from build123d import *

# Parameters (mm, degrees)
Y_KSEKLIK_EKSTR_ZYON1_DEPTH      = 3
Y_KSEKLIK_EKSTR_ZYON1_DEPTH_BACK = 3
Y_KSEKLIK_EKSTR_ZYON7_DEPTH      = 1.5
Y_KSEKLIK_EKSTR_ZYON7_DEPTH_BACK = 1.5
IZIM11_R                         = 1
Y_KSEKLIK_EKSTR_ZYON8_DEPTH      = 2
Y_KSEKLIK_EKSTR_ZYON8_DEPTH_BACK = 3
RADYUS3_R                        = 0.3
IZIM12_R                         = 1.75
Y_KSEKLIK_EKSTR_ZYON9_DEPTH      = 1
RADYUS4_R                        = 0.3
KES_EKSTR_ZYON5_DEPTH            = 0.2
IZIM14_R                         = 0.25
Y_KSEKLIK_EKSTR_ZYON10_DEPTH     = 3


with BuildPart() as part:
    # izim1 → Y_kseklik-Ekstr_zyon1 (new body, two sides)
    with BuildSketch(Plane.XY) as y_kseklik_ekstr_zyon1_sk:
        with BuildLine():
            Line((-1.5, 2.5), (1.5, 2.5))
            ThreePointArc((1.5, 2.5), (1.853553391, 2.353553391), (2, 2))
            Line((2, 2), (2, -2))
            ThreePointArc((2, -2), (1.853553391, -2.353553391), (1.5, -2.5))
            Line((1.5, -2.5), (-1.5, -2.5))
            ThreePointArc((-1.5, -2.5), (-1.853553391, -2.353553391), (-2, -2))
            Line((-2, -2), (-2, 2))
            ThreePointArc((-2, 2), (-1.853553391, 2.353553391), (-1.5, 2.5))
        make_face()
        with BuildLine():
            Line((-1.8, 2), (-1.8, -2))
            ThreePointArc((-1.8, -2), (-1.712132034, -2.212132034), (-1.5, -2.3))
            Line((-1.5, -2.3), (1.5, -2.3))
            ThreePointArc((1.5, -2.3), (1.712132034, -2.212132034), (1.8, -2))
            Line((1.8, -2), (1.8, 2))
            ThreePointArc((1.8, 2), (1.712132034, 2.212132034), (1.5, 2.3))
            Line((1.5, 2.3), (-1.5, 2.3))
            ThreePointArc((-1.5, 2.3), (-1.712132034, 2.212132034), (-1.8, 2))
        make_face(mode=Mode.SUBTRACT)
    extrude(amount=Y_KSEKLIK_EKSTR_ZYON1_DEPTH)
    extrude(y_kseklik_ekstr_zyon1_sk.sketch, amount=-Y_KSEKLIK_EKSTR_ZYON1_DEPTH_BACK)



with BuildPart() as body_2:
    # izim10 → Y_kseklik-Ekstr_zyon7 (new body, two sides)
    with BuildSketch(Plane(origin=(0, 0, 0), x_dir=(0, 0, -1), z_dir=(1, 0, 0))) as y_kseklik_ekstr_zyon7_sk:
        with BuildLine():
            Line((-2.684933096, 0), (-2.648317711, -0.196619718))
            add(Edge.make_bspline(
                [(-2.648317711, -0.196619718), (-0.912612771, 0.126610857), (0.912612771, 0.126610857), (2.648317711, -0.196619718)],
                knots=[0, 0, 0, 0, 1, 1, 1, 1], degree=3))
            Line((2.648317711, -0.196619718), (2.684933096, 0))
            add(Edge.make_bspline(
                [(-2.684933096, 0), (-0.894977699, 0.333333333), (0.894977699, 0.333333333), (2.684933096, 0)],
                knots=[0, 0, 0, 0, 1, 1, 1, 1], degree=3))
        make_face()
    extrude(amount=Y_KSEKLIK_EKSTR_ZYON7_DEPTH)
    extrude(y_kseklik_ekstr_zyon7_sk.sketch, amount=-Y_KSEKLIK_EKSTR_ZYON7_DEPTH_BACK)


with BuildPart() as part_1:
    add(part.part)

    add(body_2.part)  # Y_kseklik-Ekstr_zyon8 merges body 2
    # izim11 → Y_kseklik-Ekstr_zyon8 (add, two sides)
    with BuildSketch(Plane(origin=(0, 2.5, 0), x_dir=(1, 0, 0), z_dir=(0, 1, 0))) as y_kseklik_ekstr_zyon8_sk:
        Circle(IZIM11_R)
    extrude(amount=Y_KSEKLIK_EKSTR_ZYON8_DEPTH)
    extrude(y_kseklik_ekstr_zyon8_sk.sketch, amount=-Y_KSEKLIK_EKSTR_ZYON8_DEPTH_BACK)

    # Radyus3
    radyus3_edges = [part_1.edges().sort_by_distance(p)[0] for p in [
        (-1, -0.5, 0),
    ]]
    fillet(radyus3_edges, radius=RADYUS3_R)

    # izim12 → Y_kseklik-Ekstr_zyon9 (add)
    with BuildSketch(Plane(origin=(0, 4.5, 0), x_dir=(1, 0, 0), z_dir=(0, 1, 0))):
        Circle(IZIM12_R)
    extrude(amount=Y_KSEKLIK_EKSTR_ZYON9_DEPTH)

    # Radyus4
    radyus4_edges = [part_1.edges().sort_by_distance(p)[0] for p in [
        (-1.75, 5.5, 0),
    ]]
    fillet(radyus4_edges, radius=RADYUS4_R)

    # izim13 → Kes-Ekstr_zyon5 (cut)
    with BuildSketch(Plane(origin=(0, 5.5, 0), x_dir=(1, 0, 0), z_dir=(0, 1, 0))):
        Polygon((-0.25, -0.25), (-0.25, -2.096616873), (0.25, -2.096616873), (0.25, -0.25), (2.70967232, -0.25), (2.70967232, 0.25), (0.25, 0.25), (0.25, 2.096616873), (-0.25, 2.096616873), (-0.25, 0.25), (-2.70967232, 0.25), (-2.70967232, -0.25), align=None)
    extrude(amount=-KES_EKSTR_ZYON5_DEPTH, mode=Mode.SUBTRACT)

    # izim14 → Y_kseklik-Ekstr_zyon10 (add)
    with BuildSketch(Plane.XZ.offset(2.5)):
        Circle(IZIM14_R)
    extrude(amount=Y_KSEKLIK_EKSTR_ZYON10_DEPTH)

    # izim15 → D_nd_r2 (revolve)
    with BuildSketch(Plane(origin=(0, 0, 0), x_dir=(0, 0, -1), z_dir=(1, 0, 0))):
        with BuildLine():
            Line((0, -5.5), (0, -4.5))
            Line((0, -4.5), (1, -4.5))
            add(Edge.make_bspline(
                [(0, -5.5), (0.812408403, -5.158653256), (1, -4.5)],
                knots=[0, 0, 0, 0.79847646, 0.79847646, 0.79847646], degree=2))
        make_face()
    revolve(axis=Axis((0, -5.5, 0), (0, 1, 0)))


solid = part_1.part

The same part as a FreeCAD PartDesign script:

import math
import FreeCAD as App
import Part
import Sketcher
Q = App.Units.Quantity


def edges_at(feature, points):
    """Names of the edges that pass closest to the given points."""
    edges = feature.Shape.Edges
    near = lambda p: min(range(len(edges)), key=lambda i: edges[i].distToShape(Part.Vertex(*p))[0])
    return sorted({f"Edge{near(p) + 1}" for p in points})

doc = App.newDocument("Part")
body = doc.addObject("PartDesign::Body", "Body")

# Sketch on XY plane
sketch1 = body.newObject("Sketcher::SketchObject", "Sketch")
sketch1.AttachmentSupport = (doc.getObject("XY_Plane"), [""])
sketch1.MapMode = "FlatFace"
sketch1.addGeometry([
    Part.LineSegment(App.Vector(1.5, 2.5, 0), App.Vector(-1.5, 2.5, 0)),  # 0
    Part.ArcOfCircle(Part.Circle(App.Vector(-1.5, 2, 0), App.Vector(0, 0, 1), 0.5), math.radians(90), math.radians(180)),  # 1
    Part.LineSegment(App.Vector(-2, 2, 0), App.Vector(-2, -2, 0)),  # 2
    Part.ArcOfCircle(Part.Circle(App.Vector(-1.5, -2, 0), App.Vector(0, 0, 1), 0.5), math.radians(180), math.radians(270)),  # 3
    Part.LineSegment(App.Vector(-1.5, -2.5, 0), App.Vector(1.5, -2.5, 0)),  # 4
    Part.ArcOfCircle(Part.Circle(App.Vector(1.5, -2, 0), App.Vector(0, 0, 1), 0.5), math.radians(-90), math.radians(0)),  # 5
    Part.LineSegment(App.Vector(2, -2, 0), App.Vector(2, 2, 0)),  # 6
    Part.ArcOfCircle(Part.Circle(App.Vector(1.5, 2, 0), App.Vector(0, 0, 1), 0.5), math.radians(0), math.radians(90)),  # 7
    Part.ArcOfCircle(Part.Circle(App.Vector(-1.5, 2, 0), App.Vector(0, 0, 1), 0.3), math.radians(90), math.radians(180)),  # 8
    Part.LineSegment(App.Vector(-1.5, 2.3, 0), App.Vector(1.5, 2.3, 0)),  # 9
    Part.ArcOfCircle(Part.Circle(App.Vector(1.5, 2, 0), App.Vector(0, 0, 1), 0.3), math.radians(0), math.radians(90)),  # 10
    Part.LineSegment(App.Vector(1.8, 2, 0), App.Vector(1.8, -2, 0)),  # 11
    Part.ArcOfCircle(Part.Circle(App.Vector(1.5, -2, 0), App.Vector(0, 0, 1), 0.3), math.radians(-90), math.radians(0)),  # 12
    Part.LineSegment(App.Vector(1.5, -2.3, 0), App.Vector(-1.5, -2.3, 0)),  # 13
    Part.ArcOfCircle(Part.Circle(App.Vector(-1.5, -2, 0), App.Vector(0, 0, 1), 0.3), math.radians(-180), math.radians(-90)),  # 14
    Part.LineSegment(App.Vector(-1.8, -2, 0), App.Vector(-1.8, 2, 0)),  # 15
], False)
sketch1.addConstraint([
    Sketcher.Constraint("Tangent", 0, 2, 1, 1),
    Sketcher.Constraint("Tangent", 1, 2, 2, 1),
    Sketcher.Constraint("Tangent", 2, 2, 3, 1),
    Sketcher.Constraint("Tangent", 3, 2, 4, 1),
    Sketcher.Constraint("Tangent", 4, 2, 5, 1),
    Sketcher.Constraint("Tangent", 5, 2, 6, 1),
    Sketcher.Constraint("Tangent", 6, 2, 7, 1),
    Sketcher.Constraint("Tangent", 7, 2, 0, 1),
    Sketcher.Constraint("Tangent", 8, 1, 9, 1),
    Sketcher.Constraint("Tangent", 9, 2, 10, 2),
    Sketcher.Constraint("Tangent", 10, 1, 11, 1),
    Sketcher.Constraint("Tangent", 11, 2, 12, 2),
    Sketcher.Constraint("Tangent", 12, 1, 13, 1),
    Sketcher.Constraint("Tangent", 13, 2, 14, 2),
    Sketcher.Constraint("Tangent", 14, 1, 15, 1),
    Sketcher.Constraint("Tangent", 15, 2, 8, 2),
    Sketcher.Constraint("Horizontal", 0),
    Sketcher.Constraint("Vertical", 2),
    Sketcher.Constraint("Horizontal", 4),
    Sketcher.Constraint("Vertical", 6),
    Sketcher.Constraint("Horizontal", 9),
    Sketcher.Constraint("Vertical", 11),
    Sketcher.Constraint("Horizontal", 13),
    Sketcher.Constraint("Vertical", 15),
    Sketcher.Constraint("Coincident", 8, 3, 1, 3),
    Sketcher.Constraint("Coincident", 10, 3, 7, 3),
    Sketcher.Constraint("Coincident", 12, 3, 5, 3),
    Sketcher.Constraint("Equal", 1, 3),
    Sketcher.Constraint("Equal", 3, 5),
    Sketcher.Constraint("Equal", 5, 7),
    Sketcher.Constraint("Equal", 12, 14),
    Sketcher.Constraint("Symmetric", 1, 3, 5, 3, -1, 1),
    Sketcher.Constraint("Radius", 1, Q("0.5 mm")),
    Sketcher.Constraint("Radius", 8, Q("0.3 mm")),
    Sketcher.Constraint("DistanceX", 0, 2, 0, 1, Q("3 mm")),
    Sketcher.Constraint("DistanceY", 2, 2, 2, 1, Q("4 mm")),
])
pad1 = body.newObject("PartDesign::Pad", "Pad")
pad1.Profile = sketch1
pad1.Type = "TwoLengths"
pad1.Length = 3
pad1.Length2 = 3
body2 = doc.addObject("PartDesign::Body", "Body001")

# Sketch on YZ plane
sketch2 = body2.newObject("Sketcher::SketchObject", "Sketch001")
sketch2.AttachmentSupport = (doc.getObject("YZ_Plane001"), [""])
sketch2.MapMode = "FlatFace"
sketch2.addGeometry([
    Part.LineSegment(App.Vector(0, 2.684933, 0), App.Vector(-0.19662, 2.648318, 0)),
    Part.BSplineCurve([App.Vector(-0.19662, 2.648318, 0), App.Vector(0.126611, 0.912613, 0), App.Vector(0.126611, -0.912613, 0), App.Vector(-0.19662, -2.648318, 0)], [4, 4], [0, 1], False, 3, [1, 1, 1, 1], False),
    Part.LineSegment(App.Vector(-0.19662, -2.648318, 0), App.Vector(0, -2.684933, 0)),
    Part.BSplineCurve([App.Vector(0, 2.684933, 0), App.Vector(0.333333, 0.894978, 0), App.Vector(0.333333, -0.894978, 0), App.Vector(0, -2.684933, 0)], [4, 4], [0, 1], False, 3, [1, 1, 1, 1], False),
], False)
sketch2.addConstraint([
    Sketcher.Constraint("Block", 1),
    Sketcher.Constraint("Block", 3),
    Sketcher.Constraint("Coincident", 0, 2, 1, 1),
    Sketcher.Constraint("Coincident", 1, 2, 2, 1),
    Sketcher.Constraint("Coincident", 2, 2, 3, 2),
    Sketcher.Constraint("Coincident", 3, 1, 0, 1),
])
pad2 = body2.newObject("PartDesign::Pad", "Pad001")
pad2.Profile = sketch2
pad2.Type = "TwoLengths"
pad2.Length = 1.5
pad2.Length2 = 1.5
body.AllowCompound = True
doc.recompute()

boolean = body.newObject("PartDesign::Boolean", "Boolean")
boolean.Type = "Fuse"
boolean.addObjects([body2])

# Sketch on XZ plane
sketch3 = body.newObject("Sketcher::SketchObject", "Sketch002")
sketch3.AttachmentSupport = (doc.getObject("XZ_Plane"), [""])
sketch3.MapMode = "FlatFace"
sketch3.AttachmentOffset = App.Placement(App.Vector(0, 0, -2.5), App.Rotation())
sketch3.addGeometry(Part.Circle(App.Vector(0, 0, 0), App.Vector(0, 0, 1), 1), False)
sketch3.addConstraint([
    Sketcher.Constraint("Coincident", 0, 3, -1, 1),
    Sketcher.Constraint("Diameter", 0, Q("2 mm")),
])
pad3 = body.newObject("PartDesign::Pad", "Pad002")
pad3.Profile = sketch3
pad3.Type = "TwoLengths"
pad3.Length = 2
pad3.Length2 = 3
pad3.Reversed = True
doc.recompute()

fillet = body.newObject("PartDesign::Fillet", "Fillet")
fillet.Base = (pad3, edges_at(pad3, [(-1, -0.5, 0)]))
fillet.Radius = 0.3

# Sketch on XZ plane
sketch4 = body.newObject("Sketcher::SketchObject", "Sketch003")
sketch4.AttachmentSupport = (doc.getObject("XZ_Plane"), [""])
sketch4.MapMode = "FlatFace"
sketch4.AttachmentOffset = App.Placement(App.Vector(0, 0, -4.5), App.Rotation())
sketch4.addGeometry(Part.Circle(App.Vector(0, 0, 0), App.Vector(0, 0, 1), 1.8), False)
sketch4.addConstraint([
    Sketcher.Constraint("Coincident", 0, 3, -1, 1),
    Sketcher.Constraint("Diameter", 0, Q("3.5 mm")),
])
pad4 = body.newObject("PartDesign::Pad", "Pad003")
pad4.Profile = sketch4
pad4.Length = 1
pad4.Reversed = True
doc.recompute()

fillet2 = body.newObject("PartDesign::Fillet", "Fillet001")
fillet2.Base = (pad4, edges_at(pad4, [(-1.75, 5.5, 0)]))
fillet2.Radius = 0.3

# Sketch on XZ plane
sketch5 = body.newObject("Sketcher::SketchObject", "Sketch004")
sketch5.AttachmentSupport = (doc.getObject("XZ_Plane"), [""])
sketch5.MapMode = "FlatFace"
sketch5.AttachmentOffset = App.Placement(App.Vector(0, 0, -5.5), App.Rotation())
sketch5.addGeometry([
    Part.LineSegment(App.Vector(-0.2, 0.2, 0), App.Vector(-0.2, 2.1, 0)),  # 0
    Part.LineSegment(App.Vector(-0.2, 2.1, 0), App.Vector(0.2, 2.1, 0)),  # 1
    Part.LineSegment(App.Vector(0.2, 2.1, 0), App.Vector(0.2, 0.2, 0)),  # 2
    Part.LineSegment(App.Vector(0.2, 0.2, 0), App.Vector(2.7, 0.2, 0)),  # 3
    Part.LineSegment(App.Vector(2.7, 0.2, 0), App.Vector(2.7, -0.2, 0)),  # 4
    Part.LineSegment(App.Vector(2.7, -0.2, 0), App.Vector(0.2, -0.2, 0)),  # 5
    Part.LineSegment(App.Vector(0.2, -0.2, 0), App.Vector(0.2, -2.1, 0)),  # 6
    Part.LineSegment(App.Vector(0.2, -2.1, 0), App.Vector(-0.2, -2.1, 0)),  # 7
    Part.LineSegment(App.Vector(-0.2, -2.1, 0), App.Vector(-0.2, -0.2, 0)),  # 8
    Part.LineSegment(App.Vector(-0.2, -0.2, 0), App.Vector(-2.7, -0.2, 0)),  # 9
    Part.LineSegment(App.Vector(-2.7, -0.2, 0), App.Vector(-2.7, 0.2, 0)),  # 10
    Part.LineSegment(App.Vector(-2.7, 0.2, 0), App.Vector(-0.2, 0.2, 0)),  # 11
], False)
sketch5.addConstraint([
    Sketcher.Constraint("Coincident", 0, 2, 1, 1),
    Sketcher.Constraint("Coincident", 1, 2, 2, 1),
    Sketcher.Constraint("Coincident", 2, 2, 3, 1),
    Sketcher.Constraint("Coincident", 3, 2, 4, 1),
    Sketcher.Constraint("Coincident", 4, 2, 5, 1),
    Sketcher.Constraint("Coincident", 5, 2, 6, 1),
    Sketcher.Constraint("Coincident", 6, 2, 7, 1),
    Sketcher.Constraint("Coincident", 7, 2, 8, 1),
    Sketcher.Constraint("Coincident", 8, 2, 9, 1),
    Sketcher.Constraint("Coincident", 9, 2, 10, 1),
    Sketcher.Constraint("Coincident", 10, 2, 11, 1),
    Sketcher.Constraint("Coincident", 11, 2, 0, 1),
    Sketcher.Constraint("Vertical", 0),
    Sketcher.Constraint("Horizontal", 1),
    Sketcher.Constraint("Vertical", 2),
    Sketcher.Constraint("Horizontal", 3),
    Sketcher.Constraint("Vertical", 4),
    Sketcher.Constraint("Horizontal", 5),
    Sketcher.Constraint("Vertical", 6),
    Sketcher.Constraint("Horizontal", 7),
    Sketcher.Constraint("Vertical", 8),
    Sketcher.Constraint("Horizontal", 9),
    Sketcher.Constraint("Vertical", 10),
    Sketcher.Constraint("Horizontal", 11),
    Sketcher.Constraint("Symmetric", 0, 2, 6, 2, -1, 1),
    Sketcher.Constraint("Symmetric", 2, 2, 8, 2, -1, 1),
    Sketcher.Constraint("Symmetric", 4, 2, 10, 2, -1, 1),
    Sketcher.Constraint("Symmetric", 5, 2, 8, 2, -2),
    Sketcher.Constraint("Equal", 7, 4),
    Sketcher.Constraint("DistanceX", 1, 1, 1, 2, Q("0.5 mm")),
    Sketcher.Constraint("DistanceX", 3, 1, 3, 2, Q("2.459672 mm")),
    Sketcher.Constraint("DistanceY", 0, 1, 0, 2, Q("1.846617 mm")),
])
pocket1 = body.newObject("PartDesign::Pocket", "Pocket")
pocket1.Profile = sketch5
pocket1.Length = 0.2
pocket1.Reversed = True

# Sketch on XZ plane
sketch6 = body.newObject("Sketcher::SketchObject", "Sketch005")
sketch6.AttachmentSupport = (doc.getObject("XZ_Plane"), [""])
sketch6.MapMode = "FlatFace"
sketch6.AttachmentOffset = App.Placement(App.Vector(0, 0, 2.5), App.Rotation())
sketch6.addGeometry(Part.Circle(App.Vector(0, 0, 0), App.Vector(0, 0, 1), 0.25), False)
sketch6.addConstraint([
    Sketcher.Constraint("Coincident", 0, 3, -1, 1),
    Sketcher.Constraint("Diameter", 0, Q("0.5 mm")),
])
pad5 = body.newObject("PartDesign::Pad", "Pad004")
pad5.Profile = sketch6
pad5.Length = 3

# Sketch on YZ plane
sketch7 = body.newObject("Sketcher::SketchObject", "Sketch006")
sketch7.AttachmentSupport = (doc.getObject("YZ_Plane"), [""])
sketch7.MapMode = "FlatFace"
sketch7.addGeometry([
    Part.LineSegment(App.Vector(-4.5, 0, 0), App.Vector(-5.5, 0, 0)),
    Part.BSplineCurve([App.Vector(-5.5, 0, 0), App.Vector(-5.158653, -0.812408, 0), App.Vector(-4.5, -1, 0)], [3, 3], [0, 0.79847646], False, 2, [1, 1, 1], False),
    Part.LineSegment(App.Vector(-4.5, -1, 0), App.Vector(-4.5, 0, 0)),
], False)
sketch7.addConstraint([
    Sketcher.Constraint("Block", 1),
    Sketcher.Constraint("Coincident", 0, 2, 1, 1),
    Sketcher.Constraint("Coincident", 1, 2, 2, 1),
    Sketcher.Constraint("Coincident", 2, 2, 0, 1),
    Sketcher.Constraint("Horizontal", 0),
    Sketcher.Constraint("Vertical", 2),
])
revolution = body.newObject("PartDesign::Revolution", "Revolution")
revolution.Profile = sketch7
revolution.ReferenceAxis = (sketch7, ["H_Axis"])
revolution.Angle = 360

doc.recompute()
